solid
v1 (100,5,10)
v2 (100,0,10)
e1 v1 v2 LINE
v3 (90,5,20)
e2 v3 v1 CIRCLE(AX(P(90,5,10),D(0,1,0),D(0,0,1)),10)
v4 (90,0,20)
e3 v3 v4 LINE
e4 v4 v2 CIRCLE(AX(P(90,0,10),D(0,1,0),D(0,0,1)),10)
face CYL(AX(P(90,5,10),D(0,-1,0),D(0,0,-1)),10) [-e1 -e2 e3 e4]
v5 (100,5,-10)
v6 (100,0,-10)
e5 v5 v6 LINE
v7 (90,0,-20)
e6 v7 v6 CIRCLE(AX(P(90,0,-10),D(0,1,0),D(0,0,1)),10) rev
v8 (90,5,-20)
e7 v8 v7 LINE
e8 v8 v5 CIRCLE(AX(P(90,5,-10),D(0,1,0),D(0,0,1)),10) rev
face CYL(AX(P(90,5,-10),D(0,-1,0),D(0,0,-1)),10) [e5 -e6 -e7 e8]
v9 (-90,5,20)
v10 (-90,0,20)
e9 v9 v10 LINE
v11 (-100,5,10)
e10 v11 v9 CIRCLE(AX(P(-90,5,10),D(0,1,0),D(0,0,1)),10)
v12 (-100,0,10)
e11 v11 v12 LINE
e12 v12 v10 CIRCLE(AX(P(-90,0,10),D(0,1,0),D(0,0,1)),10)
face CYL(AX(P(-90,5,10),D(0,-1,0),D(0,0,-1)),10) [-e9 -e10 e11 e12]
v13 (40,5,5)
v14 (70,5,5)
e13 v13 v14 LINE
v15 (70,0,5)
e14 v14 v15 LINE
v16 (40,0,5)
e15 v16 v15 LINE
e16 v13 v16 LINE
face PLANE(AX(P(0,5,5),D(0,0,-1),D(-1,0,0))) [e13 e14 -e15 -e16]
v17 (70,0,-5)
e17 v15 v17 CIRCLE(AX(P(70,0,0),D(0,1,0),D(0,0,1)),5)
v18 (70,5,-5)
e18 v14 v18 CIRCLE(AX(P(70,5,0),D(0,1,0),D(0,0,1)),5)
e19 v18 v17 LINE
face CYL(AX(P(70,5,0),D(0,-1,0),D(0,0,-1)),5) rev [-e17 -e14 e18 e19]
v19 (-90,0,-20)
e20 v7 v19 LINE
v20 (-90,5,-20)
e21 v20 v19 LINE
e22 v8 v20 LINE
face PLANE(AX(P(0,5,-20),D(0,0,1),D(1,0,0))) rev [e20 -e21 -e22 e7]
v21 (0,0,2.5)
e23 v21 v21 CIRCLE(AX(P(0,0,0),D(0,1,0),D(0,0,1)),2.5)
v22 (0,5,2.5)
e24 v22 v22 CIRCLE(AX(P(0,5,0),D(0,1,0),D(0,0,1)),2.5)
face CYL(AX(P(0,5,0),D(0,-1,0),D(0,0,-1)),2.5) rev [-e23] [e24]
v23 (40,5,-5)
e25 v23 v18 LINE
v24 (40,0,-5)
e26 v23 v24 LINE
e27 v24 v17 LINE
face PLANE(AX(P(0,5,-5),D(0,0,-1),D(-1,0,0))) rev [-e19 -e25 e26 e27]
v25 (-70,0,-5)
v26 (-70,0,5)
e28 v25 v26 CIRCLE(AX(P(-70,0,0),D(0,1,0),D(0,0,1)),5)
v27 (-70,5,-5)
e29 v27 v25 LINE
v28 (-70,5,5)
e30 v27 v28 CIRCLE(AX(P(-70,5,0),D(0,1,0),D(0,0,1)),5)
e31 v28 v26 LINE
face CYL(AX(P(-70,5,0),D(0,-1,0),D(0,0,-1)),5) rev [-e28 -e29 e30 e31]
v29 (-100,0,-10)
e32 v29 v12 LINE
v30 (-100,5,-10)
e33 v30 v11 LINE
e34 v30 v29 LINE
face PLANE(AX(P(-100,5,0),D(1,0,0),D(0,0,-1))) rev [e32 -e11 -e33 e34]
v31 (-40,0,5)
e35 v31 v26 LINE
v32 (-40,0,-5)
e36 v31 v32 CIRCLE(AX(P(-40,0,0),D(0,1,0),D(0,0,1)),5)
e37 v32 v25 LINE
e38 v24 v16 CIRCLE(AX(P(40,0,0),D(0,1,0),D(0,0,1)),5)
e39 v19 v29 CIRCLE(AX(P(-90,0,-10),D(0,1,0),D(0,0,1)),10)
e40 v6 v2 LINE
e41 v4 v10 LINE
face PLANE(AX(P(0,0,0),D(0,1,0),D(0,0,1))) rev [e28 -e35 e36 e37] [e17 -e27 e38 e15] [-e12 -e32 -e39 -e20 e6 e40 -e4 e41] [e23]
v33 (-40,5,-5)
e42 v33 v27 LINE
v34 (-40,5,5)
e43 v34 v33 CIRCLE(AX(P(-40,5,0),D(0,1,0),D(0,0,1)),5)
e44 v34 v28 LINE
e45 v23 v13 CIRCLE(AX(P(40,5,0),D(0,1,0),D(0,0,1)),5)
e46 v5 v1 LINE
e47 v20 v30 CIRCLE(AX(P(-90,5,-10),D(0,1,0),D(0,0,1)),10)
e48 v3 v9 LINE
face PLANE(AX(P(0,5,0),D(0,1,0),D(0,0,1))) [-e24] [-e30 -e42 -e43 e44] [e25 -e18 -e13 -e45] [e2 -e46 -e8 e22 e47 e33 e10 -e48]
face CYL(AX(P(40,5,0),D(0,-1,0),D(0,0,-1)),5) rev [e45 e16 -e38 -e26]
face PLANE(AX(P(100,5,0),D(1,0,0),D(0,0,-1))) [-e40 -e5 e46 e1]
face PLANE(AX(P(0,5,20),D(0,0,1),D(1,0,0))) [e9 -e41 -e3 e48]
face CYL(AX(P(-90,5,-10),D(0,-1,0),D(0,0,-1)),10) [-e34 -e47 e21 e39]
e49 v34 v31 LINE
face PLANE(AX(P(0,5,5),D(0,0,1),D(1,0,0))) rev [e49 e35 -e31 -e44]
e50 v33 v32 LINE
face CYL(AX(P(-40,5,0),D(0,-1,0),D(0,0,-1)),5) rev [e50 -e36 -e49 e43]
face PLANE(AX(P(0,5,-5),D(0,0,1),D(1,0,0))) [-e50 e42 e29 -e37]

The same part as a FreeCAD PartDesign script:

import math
import FreeCAD as App
import Part
import Sketcher
from FreeCAD import Vector

doc = App.newDocument("Part")
body = doc.addObject("PartDesign::Body", "Body")

# Sketch on XZ plane
sketch1 = body.newObject("Sketcher::SketchObject", "Sketch")
sketch1.AttachmentSupport = (doc.getObject("XZ_Plane"), [""])
sketch1.MapMode = "FlatFace"
sketch1.addGeometry([
    Part.LineSegment(Vector(-100, -10, 0), Vector(-100, 10, 0)),  # 0
    Part.ArcOfCircle(Part.Circle(Vector(-90, 10, 0), Vector(0, 0, 1), 10), math.radians(90), math.radians(180)),  # 1
    Part.LineSegment(Vector(-90, 20, 0), Vector(90, 20, 0)),  # 2
    Part.ArcOfCircle(Part.Circle(Vector(90, 10, 0), Vector(0, 0, 1), 10), math.radians(0), math.radians(90)),  # 3
    Part.LineSegment(Vector(100, 10, 0), Vector(100, -10, 0)),  # 4
    Part.ArcOfCircle(Part.Circle(Vector(90, -10, 0), Vector(0, 0, 1), 10), math.radians(-90), math.radians(0)),  # 5
    Part.LineSegment(Vector(90, -20, 0), Vector(-90, -20, 0)),  # 6
    Part.ArcOfCircle(Part.Circle(Vector(-90, -10, 0), Vector(0, 0, 1), 10), math.radians(180), math.radians(270)),  # 7
    Part.ArcOfCircle(Part.Circle(Vector(-70, 0, 0), Vector(0, 0, 1), 5), math.radians(90), math.radians(270)),  # 8
    Part.LineSegment(Vector(-70, -5, 0), Vector(-40, -5, 0)),  # 9
    Part.ArcOfCircle(Part.Circle(Vector(-40, 0, 0), Vector(0, 0, 1), 5), math.radians(-90), math.radians(90)),  # 10
    Part.LineSegment(Vector(-40, 5, 0), Vector(-70, 5, 0)),  # 11
    Part.Circle(Vector(0, 0, 0), Vector(0, 0, 1), 2.5),  # 12
    Part.ArcOfCircle(Part.Circle(Vector(70, 0, 0), Vector(0, 0, 1), 5), math.radians(-90), math.radians(90)),  # 13
    Part.LineSegment(Vector(70, 5, 0), Vector(40, 5, 0)),  # 14
    Part.ArcOfCircle(Part.Circle(Vector(40, 0, 0), Vector(0, 0, 1), 5), math.radians(90), math.radians(270)),  # 15
    Part.LineSegment(Vector(40, -5, 0), Vector(70, -5, 0)),  # 16
], False)
sketch1.addConstraint([
    Sketcher.Constraint("Tangent", 0, 2, 1, 2),
    Sketcher.Constraint("Tangent", 1, 1, 2, 1),
    Sketcher.Constraint("Tangent", 2, 2, 3, 2),
    Sketcher.Constraint("Tangent", 3, 1, 4, 1),
    Sketcher.Constraint("Tangent", 4, 2, 5, 2),
    Sketcher.Constraint("Tangent", 5, 1, 6, 1),
    Sketcher.Constraint("Tangent", 6, 2, 7, 2),
    Sketcher.Constraint("Tangent", 7, 1, 0, 1),
    Sketcher.Constraint("Tangent", 8, 2, 9, 1),
    Sketcher.Constraint("Tangent", 9, 2, 10, 1),
    Sketcher.Constraint("Tangent", 10, 2, 11, 1),
    Sketcher.Constraint("Tangent", 11, 2, 8, 1),
    Sketcher.Constraint("Tangent", 13, 2, 14, 1),
    Sketcher.Constraint("Tangent", 14, 2, 15, 1),
    Sketcher.Constraint("Tangent", 15, 2, 16, 1),
    Sketcher.Constraint("Tangent", 16, 2, 13, 1),
    Sketcher.Constraint("Vertical", 0),
    Sketcher.Constraint("Horizontal", 2),
    Sketcher.Constraint("Vertical", 4),
    Sketcher.Constraint("Horizontal", 6),
    Sketcher.Constraint("Horizontal", 9),
    Sketcher.Constraint("Horizontal", 11),
    Sketcher.Constraint("Horizontal", 14),
    Sketcher.Constraint("Horizontal", 16),
    Sketcher.Constraint("Coincident", 12, 3, -1, 1),
    Sketcher.Constraint("Equal", 1, 3),
    Sketcher.Constraint("Equal", 3, 5),
    Sketcher.Constraint("Equal", 5, 7),
    Sketcher.Constraint("Equal", 10, 13),
    Sketcher.Constraint("Symmetric", 1, 3, 5, 3, -1, 1),
    Sketcher.Constraint("Symmetric", 8, 3, 13, 3, -1, 1),
    Sketcher.Constraint("Symmetric", 10, 3, 15, 3, -2),
    Sketcher.Constraint("Diameter", 12, 5.0),
    Sketcher.Constraint("Radius", 1, 10.0),
    Sketcher.Constraint("Radius", 8, 5.0),
    Sketcher.Constraint("DistanceX", 2, 1, 2, 2, 180.0),
    Sketcher.Constraint("DistanceX", 9, 1, 9, 2, 30.0),
    Sketcher.Constraint("DistanceY", 0, 1, 0, 2, 20.0),
    Sketcher.Constraint("DistanceX", 8, 3, -1, 1, 70.0),
])
pad1 = body.newObject("PartDesign::Pad", "Pad")
pad1.Profile = sketch1
pad1.Length = 5
pad1.Reversed = True

doc.recompute()
